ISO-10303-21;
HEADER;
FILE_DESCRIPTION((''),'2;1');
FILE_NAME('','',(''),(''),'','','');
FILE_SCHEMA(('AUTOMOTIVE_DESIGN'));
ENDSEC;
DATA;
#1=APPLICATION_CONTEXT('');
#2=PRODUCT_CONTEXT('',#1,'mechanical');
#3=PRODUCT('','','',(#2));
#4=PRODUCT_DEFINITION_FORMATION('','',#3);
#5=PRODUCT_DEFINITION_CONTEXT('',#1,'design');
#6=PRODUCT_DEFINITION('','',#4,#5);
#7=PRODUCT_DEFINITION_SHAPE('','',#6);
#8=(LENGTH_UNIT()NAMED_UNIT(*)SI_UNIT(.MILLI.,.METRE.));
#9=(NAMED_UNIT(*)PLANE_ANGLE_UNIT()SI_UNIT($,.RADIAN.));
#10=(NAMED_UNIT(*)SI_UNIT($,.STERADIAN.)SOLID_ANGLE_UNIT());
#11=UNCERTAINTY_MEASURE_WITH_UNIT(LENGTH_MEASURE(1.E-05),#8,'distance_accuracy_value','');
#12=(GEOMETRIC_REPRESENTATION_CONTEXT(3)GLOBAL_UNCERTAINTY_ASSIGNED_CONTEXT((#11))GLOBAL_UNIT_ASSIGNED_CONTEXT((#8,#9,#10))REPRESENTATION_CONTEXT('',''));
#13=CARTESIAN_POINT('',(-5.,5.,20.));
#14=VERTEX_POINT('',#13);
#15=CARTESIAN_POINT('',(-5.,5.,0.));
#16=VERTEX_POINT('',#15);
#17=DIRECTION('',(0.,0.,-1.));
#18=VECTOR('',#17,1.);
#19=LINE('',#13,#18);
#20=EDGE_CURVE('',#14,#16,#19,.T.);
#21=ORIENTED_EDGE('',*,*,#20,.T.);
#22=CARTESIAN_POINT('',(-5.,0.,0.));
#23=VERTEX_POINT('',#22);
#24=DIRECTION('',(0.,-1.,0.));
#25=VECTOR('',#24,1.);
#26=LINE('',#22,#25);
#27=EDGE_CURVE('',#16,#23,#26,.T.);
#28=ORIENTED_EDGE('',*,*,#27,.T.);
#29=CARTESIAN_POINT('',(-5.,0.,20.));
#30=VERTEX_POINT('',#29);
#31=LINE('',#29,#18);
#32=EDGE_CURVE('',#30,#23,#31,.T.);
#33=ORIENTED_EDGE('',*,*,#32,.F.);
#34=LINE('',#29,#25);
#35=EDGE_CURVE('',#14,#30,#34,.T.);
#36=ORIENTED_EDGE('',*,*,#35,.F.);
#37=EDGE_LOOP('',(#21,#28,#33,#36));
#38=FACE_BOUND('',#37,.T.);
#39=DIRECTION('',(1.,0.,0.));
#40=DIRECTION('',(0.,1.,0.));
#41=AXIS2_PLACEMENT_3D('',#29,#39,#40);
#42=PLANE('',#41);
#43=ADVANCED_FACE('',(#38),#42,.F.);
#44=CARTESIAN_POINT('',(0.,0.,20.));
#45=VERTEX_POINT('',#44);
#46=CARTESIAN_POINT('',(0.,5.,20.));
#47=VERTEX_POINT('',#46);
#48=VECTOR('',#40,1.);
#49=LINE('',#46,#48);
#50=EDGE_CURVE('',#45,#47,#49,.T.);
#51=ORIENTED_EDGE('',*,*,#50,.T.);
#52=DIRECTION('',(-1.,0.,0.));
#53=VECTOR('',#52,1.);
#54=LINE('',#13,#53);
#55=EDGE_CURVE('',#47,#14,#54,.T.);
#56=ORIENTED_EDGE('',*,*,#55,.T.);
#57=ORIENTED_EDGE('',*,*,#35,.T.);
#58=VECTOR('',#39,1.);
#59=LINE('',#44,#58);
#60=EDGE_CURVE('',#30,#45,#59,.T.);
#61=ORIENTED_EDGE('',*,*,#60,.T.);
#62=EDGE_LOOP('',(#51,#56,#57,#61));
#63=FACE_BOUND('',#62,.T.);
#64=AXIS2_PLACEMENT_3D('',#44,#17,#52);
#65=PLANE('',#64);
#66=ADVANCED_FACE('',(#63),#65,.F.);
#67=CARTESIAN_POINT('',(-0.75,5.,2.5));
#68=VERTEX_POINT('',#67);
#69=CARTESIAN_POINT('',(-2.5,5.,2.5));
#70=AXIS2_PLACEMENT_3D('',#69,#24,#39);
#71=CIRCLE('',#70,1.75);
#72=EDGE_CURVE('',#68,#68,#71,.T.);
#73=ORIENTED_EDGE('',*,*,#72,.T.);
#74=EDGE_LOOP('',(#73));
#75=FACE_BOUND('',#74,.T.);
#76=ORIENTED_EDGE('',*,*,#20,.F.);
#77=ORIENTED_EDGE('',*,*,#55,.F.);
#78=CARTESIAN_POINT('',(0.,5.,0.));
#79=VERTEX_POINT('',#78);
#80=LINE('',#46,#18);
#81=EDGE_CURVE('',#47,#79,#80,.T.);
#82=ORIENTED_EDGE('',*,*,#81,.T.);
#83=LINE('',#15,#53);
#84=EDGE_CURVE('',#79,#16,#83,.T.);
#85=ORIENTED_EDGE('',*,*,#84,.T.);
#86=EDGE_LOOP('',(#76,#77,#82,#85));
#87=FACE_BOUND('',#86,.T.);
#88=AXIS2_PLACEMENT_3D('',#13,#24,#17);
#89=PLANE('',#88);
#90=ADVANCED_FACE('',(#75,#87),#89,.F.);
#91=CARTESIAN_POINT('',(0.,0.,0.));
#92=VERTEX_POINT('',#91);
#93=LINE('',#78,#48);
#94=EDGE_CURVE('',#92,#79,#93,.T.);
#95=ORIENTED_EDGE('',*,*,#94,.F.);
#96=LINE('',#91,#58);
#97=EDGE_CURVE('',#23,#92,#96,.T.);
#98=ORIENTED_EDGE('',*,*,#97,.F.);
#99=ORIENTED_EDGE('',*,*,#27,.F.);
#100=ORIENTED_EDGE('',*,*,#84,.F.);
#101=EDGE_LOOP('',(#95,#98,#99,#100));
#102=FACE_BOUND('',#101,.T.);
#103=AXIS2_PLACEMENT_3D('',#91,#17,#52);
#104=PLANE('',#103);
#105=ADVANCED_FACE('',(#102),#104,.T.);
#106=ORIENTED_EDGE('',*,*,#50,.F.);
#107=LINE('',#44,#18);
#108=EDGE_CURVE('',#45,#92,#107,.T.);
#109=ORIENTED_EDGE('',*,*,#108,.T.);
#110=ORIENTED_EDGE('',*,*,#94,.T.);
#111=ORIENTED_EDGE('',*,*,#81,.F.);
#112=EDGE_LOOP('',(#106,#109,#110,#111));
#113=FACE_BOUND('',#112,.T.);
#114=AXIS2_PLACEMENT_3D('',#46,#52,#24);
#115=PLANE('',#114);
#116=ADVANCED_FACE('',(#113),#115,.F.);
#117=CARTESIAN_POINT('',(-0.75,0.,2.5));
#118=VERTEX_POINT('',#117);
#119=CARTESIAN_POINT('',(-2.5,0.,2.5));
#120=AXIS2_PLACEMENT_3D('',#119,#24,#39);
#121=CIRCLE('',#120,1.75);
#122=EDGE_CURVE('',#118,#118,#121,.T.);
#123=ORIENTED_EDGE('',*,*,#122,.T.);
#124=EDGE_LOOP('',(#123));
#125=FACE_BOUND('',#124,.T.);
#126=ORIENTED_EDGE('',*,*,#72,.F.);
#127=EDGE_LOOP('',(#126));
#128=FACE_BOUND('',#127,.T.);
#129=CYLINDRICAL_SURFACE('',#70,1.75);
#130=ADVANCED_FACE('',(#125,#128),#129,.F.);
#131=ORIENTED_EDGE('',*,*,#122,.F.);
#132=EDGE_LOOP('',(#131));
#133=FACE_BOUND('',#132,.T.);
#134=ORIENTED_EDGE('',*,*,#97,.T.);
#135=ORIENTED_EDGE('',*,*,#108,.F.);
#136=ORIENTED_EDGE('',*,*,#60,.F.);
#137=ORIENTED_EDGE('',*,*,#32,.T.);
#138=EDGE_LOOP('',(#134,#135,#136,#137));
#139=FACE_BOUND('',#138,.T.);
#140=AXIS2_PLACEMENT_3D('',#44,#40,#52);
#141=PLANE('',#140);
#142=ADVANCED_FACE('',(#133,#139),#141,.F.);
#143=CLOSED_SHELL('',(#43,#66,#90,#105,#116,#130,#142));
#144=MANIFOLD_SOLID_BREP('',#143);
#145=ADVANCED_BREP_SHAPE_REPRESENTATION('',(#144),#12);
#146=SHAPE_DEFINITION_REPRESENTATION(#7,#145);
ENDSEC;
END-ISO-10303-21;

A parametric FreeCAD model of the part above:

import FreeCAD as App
import Part
import Sketcher
Q = App.Units.Quantity

doc = App.newDocument("Part")
body = doc.addObject("PartDesign::Body", "Body")

# Sketch on XY plane
sketch1 = body.newObject("Sketcher::SketchObject", "Sketch")
sketch1.AttachmentSupport = (doc.getObject("XY_Plane"), [""])
sketch1.MapMode = "FlatFace"
sketch1.addGeometry(Part.LineSegment(App.Vector(-5, 5, 0), App.Vector(-5, 0, 0)), False)
sketch1.addGeometry(Part.LineSegment(App.Vector(-5, 0, 0), App.Vector(0, 0, 0)), False)
sketch1.addGeometry(Part.LineSegment(App.Vector(0, 0, 0), App.Vector(0, 5, 0)), False)
sketch1.addGeometry(Part.LineSegment(App.Vector(0, 5, 0), App.Vector(-5, 5, 0)), False)
sketch1.addConstraint(Sketcher.Constraint("Coincident", 0, 2, 1, 1))
sketch1.addConstraint(Sketcher.Constraint("Coincident", 1, 2, 2, 1))
sketch1.addConstraint(Sketcher.Constraint("Coincident", 2, 2, 3, 1))
sketch1.addConstraint(Sketcher.Constraint("Coincident", 3, 2, 0, 1))
sketch1.addConstraint(Sketcher.Constraint("Vertical", 0))
sketch1.addConstraint(Sketcher.Constraint("Horizontal", 1))
sketch1.addConstraint(Sketcher.Constraint("Vertical", 2))
sketch1.addConstraint(Sketcher.Constraint("Horizontal", 3))
sketch1.addConstraint(Sketcher.Constraint("Coincident", 1, 2, -1, 1))
sketch1.addConstraint(Sketcher.Constraint("Equal", 3, 0))
sketch1.addConstraint(Sketcher.Constraint("DistanceX", 1, 1, 1, 2, Q("5 mm")))
pad1 = body.newObject("PartDesign::Pad", "Pad")
pad1.Profile = sketch1
pad1.Length = 20

# Sketch on XZ plane
sketch2 = body.newObject("Sketcher::SketchObject", "Sketch001")
sketch2.AttachmentSupport = (doc.getObject("XZ_Plane"), [""])
sketch2.MapMode = "FlatFace"
sketch2.addGeometry(Part.Circle(App.Vector(-2.5, 27.5, 0), App.Vector(0, 0, 1), 1.8), False)
sketch2.addGeometry(Part.Circle(App.Vector(-2.5, 2.5, 0), App.Vector(0, 0, 1), 1.8), False)
sketch2.addConstraint(Sketcher.Constraint("Equal", 0, 1))
sketch2.addConstraint(Sketcher.Constraint("Vertical", 0, 3, 1, 3))
sketch2.addConstraint(Sketcher.Constraint("Diameter", 0, Q("3.5 mm")))
sketch2.addConstraint(Sketcher.Constraint("DistanceY", 1, 3, 0, 3, Q("25 mm")))
sketch2.addConstraint(Sketcher.Constraint("DistanceX", 0, 3, -1, 1, Q("2.5 mm")))
sketch2.addConstraint(Sketcher.Constraint("DistanceY", -1, 1, 0, 3, Q("27.5 mm")))
pocket1 = body.newObject("PartDesign::Pocket", "Pocket")
pocket1.Profile = sketch2
pocket1.Type = "ThroughAll"

doc.recompute()
